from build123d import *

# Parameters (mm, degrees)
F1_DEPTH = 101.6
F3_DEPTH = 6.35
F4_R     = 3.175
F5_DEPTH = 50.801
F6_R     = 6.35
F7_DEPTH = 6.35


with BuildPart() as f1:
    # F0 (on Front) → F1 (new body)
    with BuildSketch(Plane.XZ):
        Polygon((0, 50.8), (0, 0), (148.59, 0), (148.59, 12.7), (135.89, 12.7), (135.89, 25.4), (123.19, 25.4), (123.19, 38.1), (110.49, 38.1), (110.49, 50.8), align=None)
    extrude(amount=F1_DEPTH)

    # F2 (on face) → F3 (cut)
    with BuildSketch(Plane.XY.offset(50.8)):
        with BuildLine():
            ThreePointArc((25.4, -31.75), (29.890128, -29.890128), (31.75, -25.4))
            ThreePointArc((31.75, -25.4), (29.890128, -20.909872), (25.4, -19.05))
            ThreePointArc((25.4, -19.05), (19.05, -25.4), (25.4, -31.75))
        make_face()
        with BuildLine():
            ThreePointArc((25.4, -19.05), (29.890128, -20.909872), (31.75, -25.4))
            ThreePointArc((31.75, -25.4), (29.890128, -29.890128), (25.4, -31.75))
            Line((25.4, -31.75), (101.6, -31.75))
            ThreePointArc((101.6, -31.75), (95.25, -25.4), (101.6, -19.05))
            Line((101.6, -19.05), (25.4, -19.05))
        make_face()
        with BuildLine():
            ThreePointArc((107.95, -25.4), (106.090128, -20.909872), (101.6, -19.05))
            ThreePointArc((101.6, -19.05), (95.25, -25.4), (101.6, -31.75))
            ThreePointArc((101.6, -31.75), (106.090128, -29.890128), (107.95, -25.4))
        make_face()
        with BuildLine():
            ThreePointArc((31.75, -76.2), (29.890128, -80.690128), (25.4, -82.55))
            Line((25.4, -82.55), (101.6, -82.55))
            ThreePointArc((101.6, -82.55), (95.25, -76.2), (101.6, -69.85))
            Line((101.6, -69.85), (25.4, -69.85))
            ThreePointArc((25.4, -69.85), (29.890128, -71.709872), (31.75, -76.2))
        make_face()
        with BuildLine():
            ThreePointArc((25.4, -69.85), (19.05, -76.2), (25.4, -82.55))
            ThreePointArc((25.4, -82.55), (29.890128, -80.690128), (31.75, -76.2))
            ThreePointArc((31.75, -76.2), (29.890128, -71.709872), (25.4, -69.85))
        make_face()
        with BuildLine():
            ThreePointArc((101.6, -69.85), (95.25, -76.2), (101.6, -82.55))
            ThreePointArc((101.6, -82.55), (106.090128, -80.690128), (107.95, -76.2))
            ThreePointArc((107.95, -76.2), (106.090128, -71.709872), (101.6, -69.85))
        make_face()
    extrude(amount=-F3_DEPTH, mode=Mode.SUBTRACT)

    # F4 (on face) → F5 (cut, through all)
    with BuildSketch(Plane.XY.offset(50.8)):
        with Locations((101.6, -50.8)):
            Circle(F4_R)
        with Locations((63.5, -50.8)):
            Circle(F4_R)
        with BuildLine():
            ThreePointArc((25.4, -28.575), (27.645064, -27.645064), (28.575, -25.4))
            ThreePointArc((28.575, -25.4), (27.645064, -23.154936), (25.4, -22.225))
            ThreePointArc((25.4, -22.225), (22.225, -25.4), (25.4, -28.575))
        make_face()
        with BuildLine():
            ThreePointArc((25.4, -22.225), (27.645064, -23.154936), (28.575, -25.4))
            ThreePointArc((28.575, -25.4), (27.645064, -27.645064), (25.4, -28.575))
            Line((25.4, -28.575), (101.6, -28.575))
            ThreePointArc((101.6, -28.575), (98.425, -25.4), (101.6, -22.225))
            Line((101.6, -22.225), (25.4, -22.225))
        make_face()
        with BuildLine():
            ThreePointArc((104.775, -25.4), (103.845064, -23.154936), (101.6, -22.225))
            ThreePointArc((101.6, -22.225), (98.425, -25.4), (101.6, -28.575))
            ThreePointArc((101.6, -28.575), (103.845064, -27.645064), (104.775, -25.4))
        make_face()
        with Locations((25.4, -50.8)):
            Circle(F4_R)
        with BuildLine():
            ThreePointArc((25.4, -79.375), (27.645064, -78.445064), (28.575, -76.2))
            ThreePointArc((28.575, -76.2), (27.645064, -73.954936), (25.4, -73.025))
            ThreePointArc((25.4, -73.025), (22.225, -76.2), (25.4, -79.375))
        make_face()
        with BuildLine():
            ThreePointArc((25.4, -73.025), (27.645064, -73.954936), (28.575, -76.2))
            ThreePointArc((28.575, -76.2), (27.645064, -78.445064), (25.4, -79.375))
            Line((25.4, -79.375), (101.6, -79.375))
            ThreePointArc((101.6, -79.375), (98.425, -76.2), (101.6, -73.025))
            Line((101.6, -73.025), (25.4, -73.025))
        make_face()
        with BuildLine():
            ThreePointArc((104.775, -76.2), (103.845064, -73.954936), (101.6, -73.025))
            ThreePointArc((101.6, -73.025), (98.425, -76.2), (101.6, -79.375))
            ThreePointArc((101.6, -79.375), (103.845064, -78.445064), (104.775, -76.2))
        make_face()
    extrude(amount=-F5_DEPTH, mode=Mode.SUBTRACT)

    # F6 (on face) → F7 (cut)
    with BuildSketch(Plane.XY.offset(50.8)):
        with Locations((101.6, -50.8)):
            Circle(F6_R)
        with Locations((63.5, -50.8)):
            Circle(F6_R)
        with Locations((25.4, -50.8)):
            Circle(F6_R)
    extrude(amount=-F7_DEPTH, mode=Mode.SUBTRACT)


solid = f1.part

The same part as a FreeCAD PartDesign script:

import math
import FreeCAD as App
import Part
import Sketcher
Q = App.Units.Quantity


def add_polygon(sketch, points):
    """Adds a closed chain of lines whose ends are joined by coincident constraints."""
    first, n = sketch.GeometryCount, len(points)
    for a, b in zip(points, points[1:] + points[:1]):
        sketch.addGeometry(Part.LineSegment(App.Vector(*a, 0), App.Vector(*b, 0)), False)
    for i in range(n):
        sketch.addConstraint(Sketcher.Constraint("Coincident", first + i, 2, first + (i + 1) % n, 1))

doc = App.newDocument("Part")
body = doc.addObject("PartDesign::Body", "Body")

sketch1 = doc.addObject("Sketcher::SketchObject", "Sketch")
body.addObject(sketch1)
sketch1.AttachmentSupport = (doc.XZ_Plane, [""])
sketch1.MapMode = "FlatFace"
add_polygon(sketch1, [(0, 50.8), (0, 0), (148.59, 0), (148.59, 12.7), (135.89, 12.7), (135.89, 25.4), (123.19, 25.4), (123.19, 38.1), (110.49, 38.1), (110.49, 50.8)])
sketch1.addConstraint(Sketcher.Constraint("Vertical", 0))
sketch1.addConstraint(Sketcher.Constraint("Horizontal", 1))
sketch1.addConstraint(Sketcher.Constraint("Vertical", 2))
sketch1.addConstraint(Sketcher.Constraint("Horizontal", 3))
sketch1.addConstraint(Sketcher.Constraint("Vertical", 4))
sketch1.addConstraint(Sketcher.Constraint("Horizontal", 5))
sketch1.addConstraint(Sketcher.Constraint("Vertical", 6))
sketch1.addConstraint(Sketcher.Constraint("Horizontal", 7))
sketch1.addConstraint(Sketcher.Constraint("Vertical", 8))
sketch1.addConstraint(Sketcher.Constraint("Horizontal", 9))
sketch1.addConstraint(Sketcher.Constraint("Coincident", 0, 2, -1, 1))
sketch1.addConstraint(Sketcher.Constraint("Equal", 3, 5))
sketch1.addConstraint(Sketcher.Constraint("Equal", 5, 7))
sketch1.addConstraint(Sketcher.Constraint("Equal", 7, 2))
sketch1.addConstraint(Sketcher.Constraint("Equal", 2, 4))
sketch1.addConstraint(Sketcher.Constraint("Equal", 4, 6))
sketch1.addConstraint(Sketcher.Constraint("Equal", 6, 8))
sketch1.addConstraint(Sketcher.Constraint("DistanceY", 0, 2, 0, 1, Q("2 in")))
sketch1.addConstraint(Sketcher.Constraint("DistanceX", 1, 1, 1, 2, Q("5.85 in")))
pad1 = doc.addObject("PartDesign::Pad", "Pad")
body.addObject(pad1)
pad1.Profile = sketch1
pad1.Length = Q("4 in")

sketch2 = doc.addObject("Sketcher::SketchObject", "Sketch001")
body.addObject(sketch2)
sketch2.AttachmentSupport = (doc.XY_Plane, [""])
sketch2.MapMode = "FlatFace"
sketch2.AttachmentOffset = App.Placement(App.Vector(0, 0, 2 * 25.4), App.Rotation())
sketch2.addGeometry(Part.ArcOfCircle(Part.Circle(App.Vector(25.4, -25.4, 0), App.Vector(0, 0, 1), 6.35), math.radians(90), math.radians(270)), False)
sketch2.addGeometry(Part.LineSegment(App.Vector(25.4, -31.75, 0), App.Vector(101.6, -31.75, 0)), False)
sketch2.addGeometry(Part.ArcOfCircle(Part.Circle(App.Vector(101.6, -25.4, 0), App.Vector(0, 0, 1), 6.35), math.radians(-89.999998), math.radians(-0.000002)), False)
sketch2.addGeometry(Part.ArcOfCircle(Part.Circle(App.Vector(101.6, -25.4, 0), App.Vector(0, 0, 1), 6.35), math.radians(0.000002), math.radians(89.999998)), False)
sketch2.addGeometry(Part.LineSegment(App.Vector(101.6, -19.05, 0), App.Vector(25.4, -19.05, 0)), False)
sketch2.addGeometry(Part.LineSegment(App.Vector(25.4, -82.55, 0), App.Vector(101.6, -82.55, 0)), False)
sketch2.addGeometry(Part.ArcOfCircle(Part.Circle(App.Vector(101.6, -76.2, 0), App.Vector(0, 0, 1), 6.35), math.radians(-89.999998), math.radians(-0.000002)), False)
sketch2.addGeometry(Part.ArcOfCircle(Part.Circle(App.Vector(101.6, -76.2, 0), App.Vector(0, 0, 1), 6.35), math.radians(0.000002), math.radians(89.999998)), False)
sketch2.addGeometry(Part.LineSegment(App.Vector(101.6, -69.85, 0), App.Vector(25.4, -69.85, 0)), False)
sketch2.addGeometry(Part.ArcOfCircle(Part.Circle(App.Vector(25.4, -76.2, 0), App.Vector(0, 0, 1), 6.35), math.radians(90), math.radians(270)), False)
sketch2.addConstraint(Sketcher.Constraint("Tangent", 0, 2, 1, 1))
sketch2.addConstraint(Sketcher.Constraint("Tangent", 1, 2, 2, 1))
sketch2.addConstraint(Sketcher.Constraint("Tangent", 2, 2, 3, 1))
sketch2.addConstraint(Sketcher.Constraint("Tangent", 3, 2, 4, 1))
sketch2.addConstraint(Sketcher.Constraint("Tangent", 4, 2, 0, 1))
sketch2.addConstraint(Sketcher.Constraint("Tangent", 5, 2, 6, 1))
sketch2.addConstraint(Sketcher.Constraint("Tangent", 6, 2, 7, 1))
sketch2.addConstraint(Sketcher.Constraint("Tangent", 7, 2, 8, 1))
sketch2.addConstraint(Sketcher.Constraint("Tangent", 8, 2, 9, 1))
sketch2.addConstraint(Sketcher.Constraint("Tangent", 9, 2, 5, 1))
sketch2.addConstraint(Sketcher.Constraint("Horizontal", 1))
sketch2.addConstraint(Sketcher.Constraint("Horizontal", 4))
sketch2.addConstraint(Sketcher.Constraint("Horizontal", 5))
sketch2.addConstraint(Sketcher.Constraint("Horizontal", 8))
sketch2.addConstraint(Sketcher.Constraint("Equal", 0, 2))
sketch2.addConstraint(Sketcher.Constraint("Equal", 3, 6))
sketch2.addConstraint(Sketcher.Constraint("Equal", 6, 7))
sketch2.addConstraint(Sketcher.Constraint("Horizontal", 3, 3, 2, 2))
sketch2.addConstraint(Sketcher.Constraint("Horizontal", 9, 3, 6, 2))
sketch2.addConstraint(Sketcher.Constraint("Vertical", 3, 3, 6, 3))
sketch2.addConstraint(Sketcher.Constraint("Vertical", 0, 3, 9, 3))
sketch2.addConstraint(Sketcher.Constraint("DistanceX", 1, 1, 1, 2, Q("3 in")))
sketch2.addConstraint(Sketcher.Constraint("Radius", 0, Q("0.25 in")))
sketch2.addConstraint(Sketcher.Constraint("DistanceX", -1, 1, 0, 3, Q("1 in")))
sketch2.addConstraint(Sketcher.Constraint("DistanceY", 0, 3, -1, 1, Q("1 in")))
sketch2.addConstraint(Sketcher.Constraint("DistanceY", 6, 3, -1, 1, Q("3 in")))
pocket1 = doc.addObject("PartDesign::Pocket", "Pocket")
body.addObject(pocket1)
pocket1.Profile = sketch2
pocket1.Length = Q("0.25 in")

sketch3 = doc.addObject("Sketcher::SketchObject", "Sketch002")
body.addObject(sketch3)
sketch3.AttachmentSupport = (doc.XY_Plane, [""])
sketch3.MapMode = "FlatFace"
sketch3.AttachmentOffset = App.Placement(App.Vector(0, 0, 2 * 25.4), App.Rotation())
sketch3.addGeometry(Part.Circle(App.Vector(101.6, -50.8, 0), App.Vector(0, 0, 1), 3.175), False)
sketch3.addGeometry(Part.Circle(App.Vector(63.5, -50.8, 0), App.Vector(0, 0, 1), 3.175), False)
sketch3.addGeometry(Part.ArcOfCircle(Part.Circle(App.Vector(25.4, -25.4, 0), App.Vector(0, 0, 1), 3.175), math.radians(90), math.radians(270)), False)
sketch3.addGeometry(Part.LineSegment(App.Vector(25.4, -28.575, 0), App.Vector(101.6, -28.575, 0)), False)
sketch3.addGeometry(Part.ArcOfCircle(Part.Circle(App.Vector(101.6, -25.4, 0), App.Vector(0, 0, 1), 3.175), math.radians(-89.999998), math.radians(-0.000002)), False)
sketch3.addGeometry(Part.ArcOfCircle(Part.Circle(App.Vector(101.6, -25.4, 0), App.Vector(0, 0, 1), 3.175), math.radians(0.000002), math.radians(89.999998)), False)
sketch3.addGeometry(Part.LineSegment(App.Vector(101.6, -22.225, 0), App.Vector(25.4, -22.225, 0)), False)
sketch3.addGeometry(Part.Circle(App.Vector(25.4, -50.8, 0), App.Vector(0, 0, 1), 3.175), False)
sketch3.addGeometry(Part.ArcOfCircle(Part.Circle(App.Vector(25.4, -76.2, 0), App.Vector(0, 0, 1), 3.175), math.radians(90), math.radians(270)), False)
sketch3.addGeometry(Part.LineSegment(App.Vector(25.4, -79.375, 0), App.Vector(101.6, -79.375, 0)), False)
sketch3.addGeometry(Part.ArcOfCircle(Part.Circle(App.Vector(101.6, -76.2, 0), App.Vector(0, 0, 1), 3.175), math.radians(-89.999998), math.radians(-0.000002)), False)
sketch3.addGeometry(Part.ArcOfCircle(Part.Circle(App.Vector(101.6, -76.2, 0), App.Vector(0, 0, 1), 3.175), math.radians(0.000002), math.radians(89.999998)), False)
sketch3.addGeometry(Part.LineSegment(App.Vector(101.6, -73.025, 0), App.Vector(25.4, -73.025, 0)), False)
sketch3.addConstraint(Sketcher.Constraint("Tangent", 2, 2, 3, 1))
sketch3.addConstraint(Sketcher.Constraint("Tangent", 3, 2, 4, 1))
sketch3.addConstraint(Sketcher.Constraint("Tangent", 4, 2, 5, 1))
sketch3.addConstraint(Sketcher.Constraint("Tangent", 5, 2, 6, 1))
sketch3.addConstraint(Sketcher.Constraint("Tangent", 6, 2, 2, 1))
sketch3.addConstraint(Sketcher.Constraint("Tangent", 8, 2, 9, 1))
sketch3.addConstraint(Sketcher.Constraint("Tangent", 9, 2, 10, 1))
sketch3.addConstraint(Sketcher.Constraint("Tangent", 10, 2, 11, 1))
sketch3.addConstraint(Sketcher.Constraint("Tangent", 11, 2, 12, 1))
sketch3.addConstraint(Sketcher.Constraint("Tangent", 12, 2, 8, 1))
sketch3.addConstraint(Sketcher.Constraint("Horizontal", 3))
sketch3.addConstraint(Sketcher.Constraint("Horizontal", 6))
sketch3.addConstraint(Sketcher.Constraint("Horizontal", 9))
sketch3.addConstraint(Sketcher.Constraint("Horizontal", 12))
sketch3.addConstraint(Sketcher.Constraint("Equal", 0, 1))
sketch3.addConstraint(Sketcher.Constraint("Equal", 1, 2))
sketch3.addConstraint(Sketcher.Constraint("Equal", 2, 4))
sketch3.addConstraint(Sketcher.Constraint("Equal", 5, 7))
sketch3.addConstraint(Sketcher.Constraint("Equal", 7, 8))
sketch3.addConstraint(Sketcher.Constraint("Equal", 8, 10))
sketch3.addConstraint(Sketcher.Constraint("Horizontal", 0, 3, 1, 3))
sketch3.addConstraint(Sketcher.Constraint("Horizontal", 1, 3, 7, 3))
sketch3.addConstraint(Sketcher.Constraint("Horizontal", 5, 3, 4, 2))
sketch3.addConstraint(Sketcher.Constraint("Horizontal", 11, 3, 10, 2))
sketch3.addConstraint(Sketcher.Constraint("Vertical", 0, 3, 4, 3))
sketch3.addConstraint(Sketcher.Constraint("Vertical", 2, 3, 7, 3))
sketch3.addConstraint(Sketcher.Constraint("Vertical", 7, 3, 8, 3))
sketch3.addConstraint(Sketcher.Constraint("Vertical", 5, 3, 10, 3))
sketch3.addConstraint(Sketcher.Constraint("Diameter", 0, Q("0.25 in")))
sketch3.addConstraint(Sketcher.Constraint("DistanceX", 3, 1, 3, 2, Q("3 in")))
sketch3.addConstraint(Sketcher.Constraint("DistanceX", -1, 1, 0, 3, Q("4 in")))
sketch3.addConstraint(Sketcher.Constraint("DistanceY", 0, 3, -1, 1, Q("2 in")))
sketch3.addConstraint(Sketcher.Constraint("DistanceY", 2, 3, -1, 1, Q("1 in")))
sketch3.addConstraint(Sketcher.Constraint("DistanceY", 8, 3, -1, 1, Q("3 in")))
sketch3.addConstraint(Sketcher.Constraint("DistanceX", -1, 1, 1, 3, Q("2.5 in")))
pocket2 = doc.addObject("PartDesign::Pocket", "Pocket001")
body.addObject(pocket2)
pocket2.Profile = sketch3
pocket2.Type = "ThroughAll"

sketch4 = doc.addObject("Sketcher::SketchObject", "Sketch003")
body.addObject(sketch4)
sketch4.AttachmentSupport = (doc.XY_Plane, [""])
sketch4.MapMode = "FlatFace"
sketch4.AttachmentOffset = App.Placement(App.Vector(0, 0, 2 * 25.4), App.Rotation())
sketch4.addGeometry(Part.Circle(App.Vector(101.6, -50.8, 0), App.Vector(0, 0, 1), 6.35), False)
sketch4.addGeometry(Part.Circle(App.Vector(63.5, -50.8, 0), App.Vector(0, 0, 1), 6.35), False)
sketch4.addGeometry(Part.Circle(App.Vector(25.4, -50.8, 0), App.Vector(0, 0, 1), 6.35), False)
sketch4.addConstraint(Sketcher.Constraint("Equal", 0, 1))
sketch4.addConstraint(Sketcher.Constraint("Equal", 1, 2))
sketch4.addConstraint(Sketcher.Constraint("Horizontal", 0, 3, 1, 3))
sketch4.addConstraint(Sketcher.Constraint("Horizontal", 1, 3, 2, 3))
sketch4.addConstraint(Sketcher.Constraint("Diameter", 0, Q("0.5 in")))
sketch4.addConstraint(Sketcher.Constraint("DistanceX", -1, 1, 0, 3, Q("4 in")))
sketch4.addConstraint(Sketcher.Constraint("DistanceY", 0, 3, -1, 1, Q("2 in")))
sketch4.addConstraint(Sketcher.Constraint("DistanceX", -1, 1, 2, 3, Q("1 in")))
sketch4.addConstraint(Sketcher.Constraint("DistanceX", -1, 1, 1, 3, Q("2.5 in")))
pocket3 = doc.addObject("PartDesign::Pocket", "Pocket002")
body.addObject(pocket3)
pocket3.Profile = sketch4
pocket3.Length = Q("0.25 in")

doc.recompute()
